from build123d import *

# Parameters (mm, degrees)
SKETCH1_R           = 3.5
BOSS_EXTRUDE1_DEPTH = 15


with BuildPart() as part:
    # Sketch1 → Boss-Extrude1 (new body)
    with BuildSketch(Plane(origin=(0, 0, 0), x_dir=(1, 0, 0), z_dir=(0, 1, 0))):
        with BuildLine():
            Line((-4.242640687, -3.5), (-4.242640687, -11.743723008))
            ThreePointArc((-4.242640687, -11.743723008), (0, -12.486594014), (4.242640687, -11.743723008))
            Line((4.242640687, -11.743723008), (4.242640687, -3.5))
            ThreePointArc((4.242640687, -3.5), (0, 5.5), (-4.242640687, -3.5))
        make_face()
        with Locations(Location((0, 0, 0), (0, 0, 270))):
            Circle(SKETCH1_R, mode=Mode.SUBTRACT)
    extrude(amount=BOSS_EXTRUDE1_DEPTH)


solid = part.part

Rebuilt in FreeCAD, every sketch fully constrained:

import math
import FreeCAD as App
import Part
import Sketcher
Q = App.Units.Quantity

doc = App.newDocument("Part")
body = doc.addObject("PartDesign::Body", "Body")

# Sketch on XZ plane
sketch1 = body.newObject("Sketcher::SketchObject", "Sketch")
sketch1.AttachmentSupport = (doc.getObject("XZ_Plane"), [""])
sketch1.MapMode = "FlatFace"
sketch1.addGeometry([
    Part.LineSegment(App.Vector(-4.242641, 3.5, 0), App.Vector(-4.242641, 11.743723, 0)),  # 0
    Part.ArcOfCircle(Part.Circle(App.Vector(0, 0, 0), App.Vector(0, 0, 1), 12.486594), math.radians(70.136794), math.radians(109.863206)),  # 1
    Part.LineSegment(App.Vector(4.242641, 11.743723, 0), App.Vector(4.242641, 3.5, 0)),  # 2
    Part.ArcOfCircle(Part.Circle(App.Vector(0, 0, 0), App.Vector(0, 0, 1), 5.5), math.radians(140.478804), math.radians(399.521196)),  # 3
    Part.Circle(App.Vector(0, 0, 0), App.Vector(0, 0, 1), 3.5),  # 4
], False)
sketch1.addConstraint([
    Sketcher.Constraint("Coincident", 0, 2, 1, 2),
    Sketcher.Constraint("Coincident", 1, 1, 2, 1),
    Sketcher.Constraint("Coincident", 2, 2, 3, 2),
    Sketcher.Constraint("Coincident", 3, 1, 0, 1),
    Sketcher.Constraint("Vertical", 0),
    Sketcher.Constraint("Vertical", 2),
    Sketcher.Constraint("Coincident", 1, 3, -1, 1),
    Sketcher.Constraint("Coincident", 3, 3, -1, 1),
    Sketcher.Constraint("Coincident", 4, 3, -1, 1),
    Sketcher.Constraint("Horizontal", 0, 2, 1, 1),
    Sketcher.Constraint("Diameter", 4, Q("7 mm")),
    Sketcher.Constraint("Radius", 3, Q("5.5 mm")),
    Sketcher.Constraint("DistanceY", -1, 1, 2, 2, Q("3.5 mm")),
    Sketcher.Constraint("Radius", 1, Q("12.486594 mm")),
])
pad1 = body.newObject("PartDesign::Pad", "Pad")
pad1.Profile = sketch1
pad1.Length = 15
pad1.Reversed = True

doc.recompute()
